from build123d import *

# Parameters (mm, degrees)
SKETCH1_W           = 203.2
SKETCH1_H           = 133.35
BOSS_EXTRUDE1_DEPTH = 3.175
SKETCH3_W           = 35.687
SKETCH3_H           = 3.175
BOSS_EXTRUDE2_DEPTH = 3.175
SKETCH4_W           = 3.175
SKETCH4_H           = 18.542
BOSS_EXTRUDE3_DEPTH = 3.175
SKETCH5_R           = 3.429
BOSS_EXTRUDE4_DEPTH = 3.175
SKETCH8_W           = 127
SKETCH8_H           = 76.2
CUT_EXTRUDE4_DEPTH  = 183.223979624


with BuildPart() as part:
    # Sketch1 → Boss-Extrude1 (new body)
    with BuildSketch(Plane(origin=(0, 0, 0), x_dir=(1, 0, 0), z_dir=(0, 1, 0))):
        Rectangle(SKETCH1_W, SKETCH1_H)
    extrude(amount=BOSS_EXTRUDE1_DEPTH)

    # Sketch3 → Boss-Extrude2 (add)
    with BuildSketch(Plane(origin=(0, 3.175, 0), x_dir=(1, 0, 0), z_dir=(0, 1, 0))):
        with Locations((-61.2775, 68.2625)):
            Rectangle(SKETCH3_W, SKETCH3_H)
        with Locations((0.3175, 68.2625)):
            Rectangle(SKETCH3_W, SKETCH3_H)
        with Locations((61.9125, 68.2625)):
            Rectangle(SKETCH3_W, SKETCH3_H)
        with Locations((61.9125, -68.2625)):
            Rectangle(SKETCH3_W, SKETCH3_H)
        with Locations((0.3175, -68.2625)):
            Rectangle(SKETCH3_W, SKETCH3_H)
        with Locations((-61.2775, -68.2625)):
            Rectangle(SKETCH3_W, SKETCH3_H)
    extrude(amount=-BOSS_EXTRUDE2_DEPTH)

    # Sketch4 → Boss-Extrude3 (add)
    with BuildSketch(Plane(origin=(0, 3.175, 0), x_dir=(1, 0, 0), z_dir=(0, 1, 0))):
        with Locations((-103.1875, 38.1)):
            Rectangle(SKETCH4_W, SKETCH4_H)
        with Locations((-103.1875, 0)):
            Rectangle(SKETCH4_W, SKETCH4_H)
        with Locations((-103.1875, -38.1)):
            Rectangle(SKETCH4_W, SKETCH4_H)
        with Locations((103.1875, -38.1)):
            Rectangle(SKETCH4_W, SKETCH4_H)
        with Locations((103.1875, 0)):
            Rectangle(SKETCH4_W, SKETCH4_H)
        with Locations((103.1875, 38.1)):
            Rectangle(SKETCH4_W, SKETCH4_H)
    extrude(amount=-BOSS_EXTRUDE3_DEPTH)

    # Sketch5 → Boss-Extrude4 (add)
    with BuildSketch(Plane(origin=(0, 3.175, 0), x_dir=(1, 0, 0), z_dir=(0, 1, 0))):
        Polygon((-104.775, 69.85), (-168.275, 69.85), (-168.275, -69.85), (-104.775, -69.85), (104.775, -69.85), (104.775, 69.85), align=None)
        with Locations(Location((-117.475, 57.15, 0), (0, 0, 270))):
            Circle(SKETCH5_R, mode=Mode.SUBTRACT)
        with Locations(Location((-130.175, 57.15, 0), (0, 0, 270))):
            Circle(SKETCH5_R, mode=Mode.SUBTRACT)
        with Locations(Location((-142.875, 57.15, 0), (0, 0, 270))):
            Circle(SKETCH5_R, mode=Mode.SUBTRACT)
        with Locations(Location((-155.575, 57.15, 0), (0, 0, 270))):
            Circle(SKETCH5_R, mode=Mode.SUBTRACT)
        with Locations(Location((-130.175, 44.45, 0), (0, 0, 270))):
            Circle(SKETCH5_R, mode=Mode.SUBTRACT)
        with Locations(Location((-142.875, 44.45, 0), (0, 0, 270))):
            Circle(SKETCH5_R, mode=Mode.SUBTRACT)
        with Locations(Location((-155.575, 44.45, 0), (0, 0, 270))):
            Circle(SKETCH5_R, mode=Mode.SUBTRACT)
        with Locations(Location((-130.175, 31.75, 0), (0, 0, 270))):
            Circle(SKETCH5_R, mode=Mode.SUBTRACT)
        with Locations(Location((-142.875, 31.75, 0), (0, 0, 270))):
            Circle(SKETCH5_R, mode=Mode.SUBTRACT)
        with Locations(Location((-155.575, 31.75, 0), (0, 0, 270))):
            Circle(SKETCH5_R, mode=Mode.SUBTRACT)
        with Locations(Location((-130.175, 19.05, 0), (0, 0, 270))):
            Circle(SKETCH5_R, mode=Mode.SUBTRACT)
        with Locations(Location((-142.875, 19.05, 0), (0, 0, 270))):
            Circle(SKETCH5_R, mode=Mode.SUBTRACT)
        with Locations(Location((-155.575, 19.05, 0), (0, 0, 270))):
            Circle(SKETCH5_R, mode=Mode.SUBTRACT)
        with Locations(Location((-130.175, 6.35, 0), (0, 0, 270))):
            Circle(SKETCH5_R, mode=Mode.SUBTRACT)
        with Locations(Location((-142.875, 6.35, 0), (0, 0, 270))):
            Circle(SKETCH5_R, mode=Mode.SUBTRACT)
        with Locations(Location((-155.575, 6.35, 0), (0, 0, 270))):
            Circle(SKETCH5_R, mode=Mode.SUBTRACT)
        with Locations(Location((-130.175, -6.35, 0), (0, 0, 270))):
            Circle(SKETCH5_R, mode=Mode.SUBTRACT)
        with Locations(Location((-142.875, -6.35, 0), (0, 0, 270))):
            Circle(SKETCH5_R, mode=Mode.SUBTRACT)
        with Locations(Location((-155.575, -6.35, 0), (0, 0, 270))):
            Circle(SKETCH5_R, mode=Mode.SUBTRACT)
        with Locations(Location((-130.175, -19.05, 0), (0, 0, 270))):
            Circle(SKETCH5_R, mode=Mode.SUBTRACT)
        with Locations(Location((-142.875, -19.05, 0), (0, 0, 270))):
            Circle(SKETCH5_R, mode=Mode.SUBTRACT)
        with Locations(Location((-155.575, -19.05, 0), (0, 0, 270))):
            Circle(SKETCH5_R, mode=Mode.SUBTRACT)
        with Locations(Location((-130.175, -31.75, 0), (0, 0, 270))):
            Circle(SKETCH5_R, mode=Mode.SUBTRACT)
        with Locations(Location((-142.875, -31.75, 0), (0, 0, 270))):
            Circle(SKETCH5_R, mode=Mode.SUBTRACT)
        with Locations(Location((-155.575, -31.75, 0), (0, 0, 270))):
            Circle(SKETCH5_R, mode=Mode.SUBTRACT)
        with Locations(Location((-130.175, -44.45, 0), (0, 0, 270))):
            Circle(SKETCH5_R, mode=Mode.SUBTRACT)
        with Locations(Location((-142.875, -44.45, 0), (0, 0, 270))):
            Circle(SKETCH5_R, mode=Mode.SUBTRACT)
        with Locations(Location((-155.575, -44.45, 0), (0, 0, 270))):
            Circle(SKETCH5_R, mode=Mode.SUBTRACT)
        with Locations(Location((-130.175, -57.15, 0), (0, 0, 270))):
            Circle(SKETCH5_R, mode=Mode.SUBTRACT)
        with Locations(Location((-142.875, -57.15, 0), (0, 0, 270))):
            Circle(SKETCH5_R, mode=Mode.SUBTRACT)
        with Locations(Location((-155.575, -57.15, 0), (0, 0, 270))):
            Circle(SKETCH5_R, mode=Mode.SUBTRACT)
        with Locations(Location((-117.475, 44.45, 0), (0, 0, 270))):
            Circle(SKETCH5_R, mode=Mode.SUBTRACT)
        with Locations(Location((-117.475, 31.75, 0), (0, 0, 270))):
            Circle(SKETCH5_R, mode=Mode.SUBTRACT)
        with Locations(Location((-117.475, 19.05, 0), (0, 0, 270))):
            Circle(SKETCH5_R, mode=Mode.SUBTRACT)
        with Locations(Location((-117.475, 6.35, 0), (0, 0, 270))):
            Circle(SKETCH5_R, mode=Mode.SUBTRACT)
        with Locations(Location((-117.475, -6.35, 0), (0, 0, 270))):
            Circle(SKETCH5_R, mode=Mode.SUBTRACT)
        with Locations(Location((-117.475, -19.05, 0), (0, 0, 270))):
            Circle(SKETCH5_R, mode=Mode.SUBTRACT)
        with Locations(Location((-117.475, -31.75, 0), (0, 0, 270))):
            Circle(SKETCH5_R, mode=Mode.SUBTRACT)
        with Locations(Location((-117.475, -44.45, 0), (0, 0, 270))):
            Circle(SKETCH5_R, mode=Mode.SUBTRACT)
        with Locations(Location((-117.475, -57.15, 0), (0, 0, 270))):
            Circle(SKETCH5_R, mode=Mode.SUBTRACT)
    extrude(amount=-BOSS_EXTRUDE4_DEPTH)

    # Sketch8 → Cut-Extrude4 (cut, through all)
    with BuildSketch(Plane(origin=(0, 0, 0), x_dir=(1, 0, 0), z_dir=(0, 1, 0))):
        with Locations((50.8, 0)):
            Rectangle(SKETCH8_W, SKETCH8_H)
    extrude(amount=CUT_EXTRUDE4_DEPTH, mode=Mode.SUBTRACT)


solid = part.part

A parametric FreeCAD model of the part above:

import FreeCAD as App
import Part
import Sketcher
Q = App.Units.Quantity

doc = App.newDocument("Part")
body = doc.addObject("PartDesign::Body", "Body")

# Sketch on XZ plane
sketch1 = body.newObject("Sketcher::SketchObject", "Sketch")
sketch1.AttachmentSupport = (doc.getObject("XZ_Plane"), [""])
sketch1.MapMode = "FlatFace"
sketch1.addGeometry(Part.LineSegment(App.Vector(-101.6, -66.675, 0), App.Vector(-101.6, 66.675, 0)), False)
sketch1.addGeometry(Part.LineSegment(App.Vector(-101.6, 66.675, 0), App.Vector(101.6, 66.675, 0)), False)
sketch1.addGeometry(Part.LineSegment(App.Vector(101.6, 66.675, 0), App.Vector(101.6, -66.675, 0)), False)
sketch1.addGeometry(Part.LineSegment(App.Vector(101.6, -66.675, 0), App.Vector(-101.6, -66.675, 0)), False)
sketch1.addConstraint(Sketcher.Constraint("Coincident", 0, 2, 1, 1))
sketch1.addConstraint(Sketcher.Constraint("Coincident", 1, 2, 2, 1))
sketch1.addConstraint(Sketcher.Constraint("Coincident", 2, 2, 3, 1))
sketch1.addConstraint(Sketcher.Constraint("Coincident", 3, 2, 0, 1))
sketch1.addConstraint(Sketcher.Constraint("Vertical", 0))
sketch1.addConstraint(Sketcher.Constraint("Horizontal", 1))
sketch1.addConstraint(Sketcher.Constraint("Vertical", 2))
sketch1.addConstraint(Sketcher.Constraint("Horizontal", 3))
sketch1.addConstraint(Sketcher.Constraint("Symmetric", 0, 2, 2, 2, -1, 1))
sketch1.addConstraint(Sketcher.Constraint("DistanceX", 1, 1, 1, 2, Q("8 in")))
sketch1.addConstraint(Sketcher.Constraint("DistanceY", 0, 1, 0, 2, Q("5.25 in")))
pad1 = body.newObject("PartDesign::Pad", "Pad")
pad1.Profile = sketch1
pad1.Length = Q("0.125 in")
pad1.Reversed = True

# Sketch on XZ plane
sketch2 = body.newObject("Sketcher::SketchObject", "Sketch001")
sketch2.AttachmentSupport = (doc.getObject("XZ_Plane"), [""])
sketch2.MapMode = "FlatFace"
sketch2.AttachmentOffset = App.Placement(App.Vector(0, 0, -0.125 * 25.4), App.Rotation())
sketch2.addGeometry(Part.LineSegment(App.Vector(-79.121, -69.85, 0), App.Vector(-79.121, -66.675, 0)), False)
sketch2.addGeometry(Part.LineSegment(App.Vector(-79.121, -66.675, 0), App.Vector(-43.434, -66.675, 0)), False)
sketch2.addGeometry(Part.LineSegment(App.Vector(-43.434, -66.675, 0), App.Vector(-43.434, -69.85, 0)), False)
sketch2.addGeometry(Part.LineSegment(App.Vector(-43.434, -69.85, 0), App.Vector(-79.121, -69.85, 0)), False)
sketch2.addGeometry(Part.LineSegment(App.Vector(-17.526, -69.85, 0), App.Vector(-17.526, -66.675, 0)), False)
sketch2.addGeometry(Part.LineSegment(App.Vector(-17.526, -66.675, 0), App.Vector(18.161, -66.675, 0)), False)
sketch2.addGeometry(Part.LineSegment(App.Vector(18.161, -66.675, 0), App.Vector(18.161, -69.85, 0)), False)
sketch2.addGeometry(Part.LineSegment(App.Vector(18.161, -69.85, 0), App.Vector(-17.526, -69.85, 0)), False)
sketch2.addGeometry(Part.LineSegment(App.Vector(44.069, -69.85, 0), App.Vector(44.069, -66.675, 0)), False)
sketch2.addGeometry(Part.LineSegment(App.Vector(44.069, -66.675, 0), App.Vector(79.756, -66.675, 0)), False)
sketch2.addGeometry(Part.LineSegment(App.Vector(79.756, -66.675, 0), App.Vector(79.756, -69.85, 0)), False)
sketch2.addGeometry(Part.LineSegment(App.Vector(79.756, -69.85, 0), App.Vector(44.069, -69.85, 0)), False)
sketch2.addGeometry(Part.LineSegment(App.Vector(44.069, 66.675, 0), App.Vector(44.069, 69.85, 0)), False)
sketch2.addGeometry(Part.LineSegment(App.Vector(44.069, 69.85, 0), App.Vector(79.756, 69.85, 0)), False)
sketch2.addGeometry(Part.LineSegment(App.Vector(79.756, 69.85, 0), App.Vector(79.756, 66.675, 0)), False)
sketch2.addGeometry(Part.LineSegment(App.Vector(79.756, 66.675, 0), App.Vector(44.069, 66.675, 0)), False)
sketch2.addGeometry(Part.LineSegment(App.Vector(-17.526, 66.675, 0), App.Vector(-17.526, 69.85, 0)), False)
sketch2.addGeometry(Part.LineSegment(App.Vector(-17.526, 69.85, 0), App.Vector(18.161, 69.85, 0)), False)
sketch2.addGeometry(Part.LineSegment(App.Vector(18.161, 69.85, 0), App.Vector(18.161, 66.675, 0)), False)
sketch2.addGeometry(Part.LineSegment(App.Vector(18.161, 66.675, 0), App.Vector(-17.526, 66.675, 0)), False)
sketch2.addGeometry(Part.LineSegment(App.Vector(-79.121, 66.675, 0), App.Vector(-79.121, 69.85, 0)), False)
sketch2.addGeometry(Part.LineSegment(App.Vector(-79.121, 69.85, 0), App.Vector(-43.434, 69.85, 0)), False)
sketch2.addGeometry(Part.LineSegment(App.Vector(-43.434, 69.85, 0), App.Vector(-43.434, 66.675, 0)), False)
sketch2.addGeometry(Part.LineSegment(App.Vector(-43.434, 66.675, 0), App.Vector(-79.121, 66.675, 0)), False)
sketch2.addConstraint(Sketcher.Constraint("Coincident", 0, 2, 1, 1))
sketch2.addConstraint(Sketcher.Constraint("Coincident", 1, 2, 2, 1))
sketch2.addConstraint(Sketcher.Constraint("Coincident", 2, 2, 3, 1))
sketch2.addConstraint(Sketcher.Constraint("Coincident", 3, 2, 0, 1))
sketch2.addConstraint(Sketcher.Constraint("Coincident", 4, 2, 5, 1))
sketch2.addConstraint(Sketcher.Constraint("Coincident", 5, 2, 6, 1))
sketch2.addConstraint(Sketcher.Constraint("Coincident", 6, 2, 7, 1))
sketch2.addConstraint(Sketcher.Constraint("Coincident", 7, 2, 4, 1))
sketch2.addConstraint(Sketcher.Constraint("Coincident", 8, 2, 9, 1))
sketch2.addConstraint(Sketcher.Constraint("Coincident", 9, 2, 10, 1))
sketch2.addConstraint(Sketcher.Constraint("Coincident", 10, 2, 11, 1))
sketch2.addConstraint(Sketcher.Constraint("Coincident", 11, 2, 8, 1))
sketch2.addConstraint(Sketcher.Constraint("Coincident", 12, 2, 13, 1))
sketch2.addConstraint(Sketcher.Constraint("Coincident", 13, 2, 14, 1))
sketch2.addConstraint(Sketcher.Constraint("Coincident", 14, 2, 15, 1))
sketch2.addConstraint(Sketcher.Constraint("Coincident", 15, 2, 12, 1))
sketch2.addConstraint(Sketcher.Constraint("Coincident", 16, 2, 17, 1))
sketch2.addConstraint(Sketcher.Constraint("Coincident", 17, 2, 18, 1))
sketch2.addConstraint(Sketcher.Constraint("Coincident", 18, 2, 19, 1))
sketch2.addConstraint(Sketcher.Constraint("Coincident", 19, 2, 16, 1))
sketch2.addConstraint(Sketcher.Constraint("Coincident", 20, 2, 21, 1))
sketch2.addConstraint(Sketcher.Constraint("Coincident", 21, 2, 22, 1))
sketch2.addConstraint(Sketcher.Constraint("Coincident", 22, 2, 23, 1))
sketch2.addConstraint(Sketcher.Constraint("Coincident", 23, 2, 20, 1))
sketch2.addConstraint(Sketcher.Constraint("Vertical", 0))
sketch2.addConstraint(Sketcher.Constraint("Horizontal", 1))
sketch2.addConstraint(Sketcher.Constraint("Vertical", 2))
sketch2.addConstraint(Sketcher.Constraint("Horizontal", 3))
sketch2.addConstraint(Sketcher.Constraint("Vertical", 4))
sketch2.addConstraint(Sketcher.Constraint("Horizontal", 5))
sketch2.addConstraint(Sketcher.Constraint("Vertical", 6))
sketch2.addConstraint(Sketcher.Constraint("Horizontal", 7))
sketch2.addConstraint(Sketcher.Constraint("Vertical", 8))
sketch2.addConstraint(Sketcher.Constraint("Horizontal", 9))
sketch2.addConstraint(Sketcher.Constraint("Vertical", 10))
sketch2.addConstraint(Sketcher.Constraint("Horizontal", 11))
sketch2.addConstraint(Sketcher.Constraint("Vertical", 12))
sketch2.addConstraint(Sketcher.Constraint("Horizontal", 13))
sketch2.addConstraint(Sketcher.Constraint("Vertical", 14))
sketch2.addConstraint(Sketcher.Constraint("Horizontal", 15))
sketch2.addConstraint(Sketcher.Constraint("Vertical", 16))
sketch2.addConstraint(Sketcher.Constraint("Horizontal", 17))
sketch2.addConstraint(Sketcher.Constraint("Vertical", 18))
sketch2.addConstraint(Sketcher.Constraint("Horizontal", 19))
sketch2.addConstraint(Sketcher.Constraint("Vertical", 20))
sketch2.addConstraint(Sketcher.Constraint("Horizontal", 21))
sketch2.addConstraint(Sketcher.Constraint("Vertical", 22))
sketch2.addConstraint(Sketcher.Constraint("Horizontal", 23))
sketch2.addConstraint(Sketcher.Constraint("Symmetric", 11, 2, 12, 2, -1))
sketch2.addConstraint(Sketcher.Constraint("Symmetric", 9, 2, 14, 2, -1))
sketch2.addConstraint(Sketcher.Constraint("Symmetric", 7, 2, 16, 2, -1))
sketch2.addConstraint(Sketcher.Constraint("Symmetric", 5, 2, 18, 2, -1))
sketch2.addConstraint(Sketcher.Constraint("Symmetric", 3, 2, 20, 2, -1))
sketch2.addConstraint(Sketcher.Constraint("Symmetric", 1, 2, 22, 2, -1))
sketch2.addConstraint(Sketcher.Constraint("Horizontal", 1, 2, 4, 2))
sketch2.addConstraint(Sketcher.Constraint("Horizontal", 3, 2, 6, 2))
sketch2.addConstraint(Sketcher.Constraint("Horizontal", 5, 2, 8, 2))
sketch2.addConstraint(Sketcher.Constraint("Horizontal", 7, 2, 10, 2))
sketch2.addConstraint(Sketcher.Constraint("Equal", 3, 5))
sketch2.addConstraint(Sketcher.Constraint("Equal", 7, 9))
sketch2.addConstraint(Sketcher.Constraint("DistanceY", 11, 2, 12, 2, Q("5.5 in")))
sketch2.addConstraint(Sketcher.Constraint("DistanceX", 1, 1, 1, 2, Q("1.405 in")))
sketch2.addConstraint(Sketcher.Constraint("DistanceY", 0, 1, 0, 2, Q("0.125 in")))
sketch2.addConstraint(Sketcher.Constraint("DistanceX", 1, 2, -1, 1, Q("1.71 in")))
sketch2.addConstraint(Sketcher.Constraint("DistanceX", 4, 2, -1, 1, Q("0.69 in")))
sketch2.addConstraint(Sketcher.Constraint("DistanceX", -1, 1, 9, 2, Q("3.14 in")))
pad2 = body.newObject("PartDesign::Pad", "Pad001")
pad2.Profile = sketch2
pad2.Length = Q("0.125 in")

# Sketch on XZ plane
sketch3 = body.newObject("Sketcher::SketchObject", "Sketch002")
sketch3.AttachmentSupport = (doc.getObject("XZ_Plane"), [""])
sketch3.MapMode = "FlatFace"
sketch3.AttachmentOffset = App.Placement(App.Vector(0, 0, -0.125 * 25.4), App.Rotation())
sketch3.addGeometry(Part.LineSegment(App.Vector(-104.775, -47.371, 0), App.Vector(-104.775, -28.829, 0)), False)
sketch3.addGeometry(Part.LineSegment(App.Vector(-104.775, -28.829, 0), App.Vector(-101.6, -28.829, 0)), False)
sketch3.addGeometry(Part.LineSegment(App.Vector(-101.6, -28.829, 0), App.Vector(-101.6, -47.371, 0)), False)
sketch3.addGeometry(Part.LineSegment(App.Vector(-101.6, -47.371, 0), App.Vector(-104.775, -47.371, 0)), False)
sketch3.addGeometry(Part.LineSegment(App.Vector(-104.775, -9.271, 0), App.Vector(-104.775, 9.271, 0)), False)
sketch3.addGeometry(Part.LineSegment(App.Vector(-104.775, 9.271, 0), App.Vector(-101.6, 9.271, 0)), False)
sketch3.addGeometry(Part.LineSegment(App.Vector(-101.6, 9.271, 0), App.Vector(-101.6, -9.271, 0)), False)
sketch3.addGeometry(Part.LineSegment(App.Vector(-101.6, -9.271, 0), App.Vector(-104.775, -9.271, 0)), False)
sketch3.addGeometry(Part.LineSegment(App.Vector(-104.775, 28.829, 0), App.Vector(-104.775, 47.371, 0)), False)
sketch3.addGeometry(Part.LineSegment(App.Vector(-104.775, 47.371, 0), App.Vector(-101.6, 47.371, 0)), False)
sketch3.addGeometry(Part.LineSegment(App.Vector(-101.6, 47.371, 0), App.Vector(-101.6, 28.829, 0)), False)
sketch3.addGeometry(Part.LineSegment(App.Vector(-101.6, 28.829, 0), App.Vector(-104.775, 28.829, 0)), False)
sketch3.addGeometry(Part.LineSegment(App.Vector(101.6, 28.829, 0), App.Vector(101.6, 47.371, 0)), False)
sketch3.addGeometry(Part.LineSegment(App.Vector(101.6, 47.371, 0), App.Vector(104.775, 47.371, 0)), False)
sketch3.addGeometry(Part.LineSegment(App.Vector(104.775, 47.371, 0), App.Vector(104.775, 28.829, 0)), False)
sketch3.addGeometry(Part.LineSegment(App.Vector(104.775, 28.829, 0), App.Vector(101.6, 28.829, 0)), False)
sketch3.addGeometry(Part.LineSegment(App.Vector(101.6, -9.271, 0), App.Vector(101.6, 9.271, 0)), False)
sketch3.addGeometry(Part.LineSegment(App.Vector(101.6, 9.271, 0), App.Vector(104.775, 9.271, 0)), False)
sketch3.addGeometry(Part.LineSegment(App.Vector(104.775, 9.271, 0), App.Vector(104.775, -9.271, 0)), False)
sketch3.addGeometry(Part.LineSegment(App.Vector(104.775, -9.271, 0), App.Vector(101.6, -9.271, 0)), False)
sketch3.addGeometry(Part.LineSegment(App.Vector(101.6, -47.371, 0), App.Vector(101.6, -28.829, 0)), False)
sketch3.addGeometry(Part.LineSegment(App.Vector(101.6, -28.829, 0), App.Vector(104.775, -28.829, 0)), False)
sketch3.addGeometry(Part.LineSegment(App.Vector(104.775, -28.829, 0), App.Vector(104.775, -47.371, 0)), False)
sketch3.addGeometry(Part.LineSegment(App.Vector(104.775, -47.371, 0), App.Vector(101.6, -47.371, 0)), False)
sketch3.addConstraint(Sketcher.Constraint("Coincident", 0, 2, 1, 1))
sketch3.addConstraint(Sketcher.Constraint("Coincident", 1, 2, 2, 1))
sketch3.addConstraint(Sketcher.Constraint("Coincident", 2, 2, 3, 1))
sketch3.addConstraint(Sketcher.Constraint("Coincident", 3, 2, 0, 1))
sketch3.addConstraint(Sketcher.Constraint("Coincident", 4, 2, 5, 1))
sketch3.addConstraint(Sketcher.Constraint("Coincident", 5, 2, 6, 1))
sketch3.addConstraint(Sketcher.Constraint("Coincident", 6, 2, 7, 1))
sketch3.addConstraint(Sketcher.Constraint("Coincident", 7, 2, 4, 1))
sketch3.addConstraint(Sketcher.Constraint("Coincident", 8, 2, 9, 1))
sketch3.addConstraint(Sketcher.Constraint("Coincident", 9, 2, 10, 1))
sketch3.addConstraint(Sketcher.Constraint("Coincident", 10, 2, 11, 1))
sketch3.addConstraint(Sketcher.Constraint("Coincident", 11, 2, 8, 1))
sketch3.addConstraint(Sketcher.Constraint("Coincident", 12, 2, 13, 1))
sketch3.addConstraint(Sketcher.Constraint("Coincident", 13, 2, 14, 1))
sketch3.addConstraint(Sketcher.Constraint("Coincident", 14, 2, 15, 1))
sketch3.addConstraint(Sketcher.Constraint("Coincident", 15, 2, 12, 1))
sketch3.addConstraint(Sketcher.Constraint("Coincident", 16, 2, 17, 1))
sketch3.addConstraint(Sketcher.Constraint("Coincident", 17, 2, 18, 1))
sketch3.addConstraint(Sketcher.Constraint("Coincident", 18, 2, 19, 1))
sketch3.addConstraint(Sketcher.Constraint("Coincident", 19, 2, 16, 1))
sketch3.addConstraint(Sketcher.Constraint("Coincident", 20, 2, 21, 1))
sketch3.addConstraint(Sketcher.Constraint("Coincident", 21, 2, 22, 1))
sketch3.addConstraint(Sketcher.Constraint("Coincident", 22, 2, 23, 1))
sketch3.addConstraint(Sketcher.Constraint("Coincident", 23, 2, 20, 1))
sketch3.addConstraint(Sketcher.Constraint("Vertical", 0))
sketch3.addConstraint(Sketcher.Constraint("Horizontal", 1))
sketch3.addConstraint(Sketcher.Constraint("Vertical", 2))
sketch3.addConstraint(Sketcher.Constraint("Horizontal", 3))
sketch3.addConstraint(Sketcher.Constraint("Vertical", 4))
sketch3.addConstraint(Sketcher.Constraint("Horizontal", 5))
sketch3.addConstraint(Sketcher.Constraint("Vertical", 6))
sketch3.addConstraint(Sketcher.Constraint("Horizontal", 7))
sketch3.addConstraint(Sketcher.Constraint("Vertical", 8))
sketch3.addConstraint(Sketcher.Constraint("Horizontal", 9))
sketch3.addConstraint(Sketcher.Constraint("Vertical", 10))
sketch3.addConstraint(Sketcher.Constraint("Horizontal", 11))
sketch3.addConstraint(Sketcher.Constraint("Vertical", 12))
sketch3.addConstraint(Sketcher.Constraint("Horizontal", 13))
sketch3.addConstraint(Sketcher.Constraint("Vertical", 14))
sketch3.addConstraint(Sketcher.Constraint("Horizontal", 15))
sketch3.addConstraint(Sketcher.Constraint("Vertical", 16))
sketch3.addConstraint(Sketcher.Constraint("Horizontal", 17))
sketch3.addConstraint(Sketcher.Constraint("Vertical", 18))
sketch3.addConstraint(Sketcher.Constraint("Horizontal", 19))
sketch3.addConstraint(Sketcher.Constraint("Vertical", 20))
sketch3.addConstraint(Sketcher.Constraint("Horizontal", 21))
sketch3.addConstraint(Sketcher.Constraint("Vertical", 22))
sketch3.addConstraint(Sketcher.Constraint("Horizontal", 23))
sketch3.addConstraint(Sketcher.Constraint("Symmetric", 2, 2, 12, 2, -1, 1))
sketch3.addConstraint(Sketcher.Constraint("Symmetric", 0, 2, 14, 2, -1, 1))
sketch3.addConstraint(Sketcher.Constraint("Symmetric", 6, 2, 16, 2, -1, 1))
sketch3.addConstraint(Sketcher.Constraint("Symmetric", 4, 2, 18, 2, -1, 1))
sketch3.addConstraint(Sketcher.Constraint("Symmetric", 10, 2, 20, 2, -1, 1))
sketch3.addConstraint(Sketcher.Constraint("Symmetric", 8, 2, 22, 2, -1, 1))
sketch3.addConstraint(Sketcher.Constraint("Symmetric", 9, 2, 12, 2, -2))
sketch3.addConstraint(Sketcher.Constraint("Symmetric", 11, 2, 14, 2, -2))
sketch3.addConstraint(Sketcher.Constraint("Horizontal", 5, 2, 16, 2))
sketch3.addConstraint(Sketcher.Constraint("Vertical", 3, 2, 4, 2))
sketch3.addConstraint(Sketcher.Constraint("Vertical", 2, 2, 5, 2))
sketch3.addConstraint(Sketcher.Constraint("Equal", 2, 4))
sketch3.addConstraint(Sketcher.Constraint("DistanceX", 1, 2, -1, 1, Q("4 in")))
sketch3.addConstraint(Sketcher.Constraint("DistanceY", 0, 2, 8, 2, Q("3 in")))
sketch3.addConstraint(Sketcher.Constraint("DistanceY", 0, 1, 0, 2, Q("0.73 in")))
sketch3.addConstraint(Sketcher.Constraint("DistanceX", 1, 1, 1, 2, Q("0.125 in")))
pad3 = body.newObject("PartDesign::Pad", "Pad002")
pad3.Profile = sketch3
pad3.Length = Q("0.125 in")

# Sketch on XZ plane
sketch4 = body.newObject("Sketcher::SketchObject", "Sketch003")
sketch4.AttachmentSupport = (doc.getObject("XZ_Plane"), [""])
sketch4.MapMode = "FlatFace"
sketch4.AttachmentOffset = App.Placement(App.Vector(0, 0, -0.125 * 25.4), App.Rotation())
sketch4.addGeometry(Part.LineSegment(App.Vector(-168.275, -69.85, 0), App.Vector(-168.275, 69.85, 0)), False)
sketch4.addGeometry(Part.LineSegment(App.Vector(-168.275, 69.85, 0), App.Vector(104.775, 69.85, 0)), False)
sketch4.addGeometry(Part.LineSegment(App.Vector(104.775, 69.85, 0), App.Vector(104.775, -69.85, 0)), False)
sketch4.addGeometry(Part.LineSegment(App.Vector(104.775, -69.85, 0), App.Vector(-168.275, -69.85, 0)), False)
sketch4.addGeometry(Part.Circle(App.Vector(-155.575, 57.15, 0), App.Vector(0, 0, 1), 3.429), False)
sketch4.addGeometry(Part.Circle(App.Vector(-155.575, 44.45, 0), App.Vector(0, 0, 1), 3.429), False)
sketch4.addGeometry(Part.Circle(App.Vector(-155.575, 31.75, 0), App.Vector(0, 0, 1), 3.429), False)
sketch4.addGeometry(Part.Circle(App.Vector(-142.875, 57.15, 0), App.Vector(0, 0, 1), 3.429), False)
sketch4.addGeometry(Part.Circle(App.Vector(-142.875, 44.45, 0), App.Vector(0, 0, 1), 3.429), False)
sketch4.addGeometry(Part.Circle(App.Vector(-142.875, 31.75, 0), App.Vector(0, 0, 1), 3.429), False)
sketch4.addGeometry(Part.Circle(App.Vector(-155.575, 19.05, 0), App.Vector(0, 0, 1), 3.429), False)
sketch4.addGeometry(Part.Circle(App.Vector(-155.575, 6.35, 0), App.Vector(0, 0, 1), 3.429), False)
sketch4.addGeometry(Part.Circle(App.Vector(-142.875, 19.05, 0), App.Vector(0, 0, 1), 3.429), False)
sketch4.addGeometry(Part.Circle(App.Vector(-142.875, 6.35, 0), App.Vector(0, 0, 1), 3.429), False)
sketch4.addGeometry(Part.Circle(App.Vector(-130.175, 57.15, 0), App.Vector(0, 0, 1), 3.429), False)
sketch4.addGeometry(Part.Circle(App.Vector(-130.175, 44.45, 0), App.Vector(0, 0, 1), 3.429), False)
sketch4.addGeometry(Part.Circle(App.Vector(-130.175, 31.75, 0), App.Vector(0, 0, 1), 3.429), False)
sketch4.addGeometry(Part.Circle(App.Vector(-117.475, 57.15, 0), App.Vector(0, 0, 1), 3.429), False)
sketch4.addGeometry(Part.Circle(App.Vector(-117.475, 44.45, 0), App.Vector(0, 0, 1), 3.429), False)
sketch4.addGeometry(Part.Circle(App.Vector(-117.475, 31.75, 0), App.Vector(0, 0, 1), 3.429), False)
sketch4.addGeometry(Part.Circle(App.Vector(-130.175, 19.05, 0), App.Vector(0, 0, 1), 3.429), False)
sketch4.addGeometry(Part.Circle(App.Vector(-130.175, 6.35, 0), App.Vector(0, 0, 1), 3.429), False)
sketch4.addGeometry(Part.Circle(App.Vector(-117.475, 19.05, 0), App.Vector(0, 0, 1), 3.429), False)
sketch4.addGeometry(Part.Circle(App.Vector(-117.475, 6.35, 0), App.Vector(0, 0, 1), 3.429), False)
sketch4.addGeometry(Part.Circle(App.Vector(-155.575, -6.35, 0), App.Vector(0, 0, 1), 3.429), False)
sketch4.addGeometry(Part.Circle(App.Vector(-155.575, -19.05, 0), App.Vector(0, 0, 1), 3.429), False)
sketch4.addGeometry(Part.Circle(App.Vector(-142.875, -6.35, 0), App.Vector(0, 0, 1), 3.429), False)
sketch4.addGeometry(Part.Circle(App.Vector(-142.875, -19.05, 0), App.Vector(0, 0, 1), 3.429), False)
sketch4.addGeometry(Part.Circle(App.Vector(-155.575, -31.75, 0), App.Vector(0, 0, 1), 3.429), False)
sketch4.addGeometry(Part.Circle(App.Vector(-155.575, -44.45, 0), App.Vector(0, 0, 1), 3.429), False)
sketch4.addGeometry(Part.Circle(App.Vector(-155.575, -57.15, 0), App.Vector(0, 0, 1), 3.429), False)
sketch4.addGeometry(Part.Circle(App.Vector(-142.875, -31.75, 0), App.Vector(0, 0, 1), 3.429), False)
sketch4.addGeometry(Part.Circle(App.Vector(-142.875, -44.45, 0), App.Vector(0, 0, 1), 3.429), False)
sketch4.addGeometry(Part.Circle(App.Vector(-142.875, -57.15, 0), App.Vector(0, 0, 1), 3.429), False)
sketch4.addGeometry(Part.Circle(App.Vector(-130.175, -6.35, 0), App.Vector(0, 0, 1), 3.429), False)
sketch4.addGeometry(Part.Circle(App.Vector(-130.175, -19.05, 0), App.Vector(0, 0, 1), 3.429), False)
sketch4.addGeometry(Part.Circle(App.Vector(-117.475, -6.35, 0), App.Vector(0, 0, 1), 3.429), False)
sketch4.addGeometry(Part.Circle(App.Vector(-117.475, -19.05, 0), App.Vector(0, 0, 1), 3.429), False)
sketch4.addGeometry(Part.Circle(App.Vector(-130.175, -31.75, 0), App.Vector(0, 0, 1), 3.429), False)
sketch4.addGeometry(Part.Circle(App.Vector(-130.175, -44.45, 0), App.Vector(0, 0, 1), 3.429), False)
sketch4.addGeometry(Part.Circle(App.Vector(-130.175, -57.15, 0), App.Vector(0, 0, 1), 3.429), False)
sketch4.addGeometry(Part.Circle(App.Vector(-117.475, -31.75, 0), App.Vector(0, 0, 1), 3.429), False)
sketch4.addGeometry(Part.Circle(App.Vector(-117.475, -44.45, 0), App.Vector(0, 0, 1), 3.429), False)
sketch4.addGeometry(Part.Circle(App.Vector(-117.475, -57.15, 0), App.Vector(0, 0, 1), 3.429), False)
sketch4.addConstraint(Sketcher.Constraint("Coincident", 0, 2, 1, 1))
sketch4.addConstraint(Sketcher.Constraint("Coincident", 1, 2, 2, 1))
sketch4.addConstraint(Sketcher.Constraint("Coincident", 2, 2, 3, 1))
sketch4.addConstraint(Sketcher.Constraint("Coincident", 3, 2, 0, 1))
sketch4.addConstraint(Sketcher.Constraint("Vertical", 0))
sketch4.addConstraint(Sketcher.Constraint("Horizontal", 1))
sketch4.addConstraint(Sketcher.Constraint("Vertical", 2))
sketch4.addConstraint(Sketcher.Constraint("Horizontal", 3))
sketch4.addConstraint(Sketcher.Constraint("Equal", 4, 5))
sketch4.addConstraint(Sketcher.Constraint("Equal", 5, 6))
sketch4.addConstraint(Sketcher.Constraint("Equal", 6, 7))
sketch4.addConstraint(Sketcher.Constraint("Equal", 7, 8))
sketch4.addConstraint(Sketcher.Constraint("Equal", 8, 9))
sketch4.addConstraint(Sketcher.Constraint("Equal", 9, 10))
sketch4.addConstraint(Sketcher.Constraint("Equal", 10, 11))
sketch4.addConstraint(Sketcher.Constraint("Equal", 11, 12))
sketch4.addConstraint(Sketcher.Constraint("Equal", 12, 13))
sketch4.addConstraint(Sketcher.Constraint("Equal", 13, 14))
sketch4.addConstraint(Sketcher.Constraint("Equal", 14, 15))
sketch4.addConstraint(Sketcher.Constraint("Equal", 15, 16))
sketch4.addConstraint(Sketcher.Constraint("Equal", 16, 17))
sketch4.addConstraint(Sketcher.Constraint("Equal", 17, 18))
sketch4.addConstraint(Sketcher.Constraint("Equal", 18, 19))
sketch4.addConstraint(Sketcher.Constraint("Equal", 19, 20))
sketch4.addConstraint(Sketcher.Constraint("Equal", 20, 21))
sketch4.addConstraint(Sketcher.Constraint("Equal", 21, 22))
sketch4.addConstraint(Sketcher.Constraint("Equal", 22, 23))
sketch4.addConstraint(Sketcher.Constraint("Equal", 23, 24))
sketch4.addConstraint(Sketcher.Constraint("Equal", 24, 25))
sketch4.addConstraint(Sketcher.Constraint("Equal", 25, 26))
sketch4.addConstraint(Sketcher.Constraint("Equal", 26, 27))
sketch4.addConstraint(Sketcher.Constraint("Equal", 27, 28))
sketch4.addConstraint(Sketcher.Constraint("Equal", 28, 29))
sketch4.addConstraint(Sketcher.Constraint("Equal", 29, 30))
sketch4.addConstraint(Sketcher.Constraint("Equal", 30, 31))
sketch4.addConstraint(Sketcher.Constraint("Equal", 31, 32))
sketch4.addConstraint(Sketcher.Constraint("Equal", 32, 33))
sketch4.addConstraint(Sketcher.Constraint("Equal", 33, 34))
sketch4.addConstraint(Sketcher.Constraint("Equal", 34, 35))
sketch4.addConstraint(Sketcher.Constraint("Equal", 35, 36))
sketch4.addConstraint(Sketcher.Constraint("Equal", 36, 37))
sketch4.addConstraint(Sketcher.Constraint("Equal", 37, 38))
sketch4.addConstraint(Sketcher.Constraint("Equal", 38, 39))
sketch4.addConstraint(Sketcher.Constraint("Equal", 39, 40))
sketch4.addConstraint(Sketcher.Constraint("Equal", 40, 41))
sketch4.addConstraint(Sketcher.Constraint("Equal", 41, 42))
sketch4.addConstraint(Sketcher.Constraint("Equal", 42, 43))
sketch4.addConstraint(Sketcher.Constraint("Symmetric", 11, 3, 24, 3, -1))
sketch4.addConstraint(Sketcher.Constraint("Symmetric", 10, 3, 25, 3, -1))
sketch4.addConstraint(Sketcher.Constraint("Symmetric", 13, 3, 26, 3, -1))
sketch4.addConstraint(Sketcher.Constraint("Symmetric", 12, 3, 27, 3, -1))
sketch4.addConstraint(Sketcher.Constraint("Symmetric", 6, 3, 28, 3, -1))
sketch4.addConstraint(Sketcher.Constraint("Symmetric", 5, 3, 29, 3, -1))
sketch4.addConstraint(Sketcher.Constraint("Symmetric", 4, 3, 30, 3, -1))
sketch4.addConstraint(Sketcher.Constraint("Symmetric", 9, 3, 31, 3, -1))
sketch4.addConstraint(Sketcher.Constraint("Symmetric", 8, 3, 32, 3, -1))
sketch4.addConstraint(Sketcher.Constraint("Symmetric", 7, 3, 33, 3, -1))
sketch4.addConstraint(Sketcher.Constraint("Symmetric", 21, 3, 34, 3, -1))
sketch4.addConstraint(Sketcher.Constraint("Symmetric", 20, 3, 35, 3, -1))
sketch4.addConstraint(Sketcher.Constraint("Symmetric", 23, 3, 36, 3, -1))
sketch4.addConstraint(Sketcher.Constraint("Symmetric", 22, 3, 37, 3, -1))
sketch4.addConstraint(Sketcher.Constraint("Symmetric", 16, 3, 38, 3, -1))
sketch4.addConstraint(Sketcher.Constraint("Symmetric", 15, 3, 39, 3, -1))
sketch4.addConstraint(Sketcher.Constraint("Symmetric", 14, 3, 40, 3, -1))
sketch4.addConstraint(Sketcher.Constraint("Symmetric", 19, 3, 41, 3, -1))
sketch4.addConstraint(Sketcher.Constraint("Symmetric", 18, 3, 42, 3, -1))
sketch4.addConstraint(Sketcher.Constraint("Symmetric", 17, 3, 43, 3, -1))
sketch4.addConstraint(Sketcher.Constraint("Horizontal", 4, 3, 7, 3))
sketch4.addConstraint(Sketcher.Constraint("Horizontal", 5, 3, 8, 3))
sketch4.addConstraint(Sketcher.Constraint("Horizontal", 6, 3, 9, 3))
sketch4.addConstraint(Sketcher.Constraint("Horizontal", 10, 3, 12, 3))
sketch4.addConstraint(Sketcher.Constraint("Horizontal", 11, 3, 13, 3))
sketch4.addConstraint(Sketcher.Constraint("Horizontal", 7, 3, 14, 3))
sketch4.addConstraint(Sketcher.Constraint("Horizontal", 8, 3, 15, 3))
sketch4.addConstraint(Sketcher.Constraint("Horizontal", 9, 3, 16, 3))
sketch4.addConstraint(Sketcher.Constraint("Horizontal", 14, 3, 17, 3))
sketch4.addConstraint(Sketcher.Constraint("Horizontal", 15, 3, 18, 3))
sketch4.addConstraint(Sketcher.Constraint("Horizontal", 16, 3, 19, 3))
sketch4.addConstraint(Sketcher.Constraint("Horizontal", 12, 3, 20, 3))
sketch4.addConstraint(Sketcher.Constraint("Horizontal", 13, 3, 21, 3))
sketch4.addConstraint(Sketcher.Constraint("Horizontal", 20, 3, 22, 3))
sketch4.addConstraint(Sketcher.Constraint("Horizontal", 21, 3, 23, 3))
sketch4.addConstraint(Sketcher.Constraint("Vertical", 4, 3, 5, 3))
sketch4.addConstraint(Sketcher.Constraint("Vertical", 5, 3, 6, 3))
sketch4.addConstraint(Sketcher.Constraint("Vertical", 7, 3, 8, 3))
sketch4.addConstraint(Sketcher.Constraint("Vertical", 8, 3, 9, 3))
sketch4.addConstraint(Sketcher.Constraint("Vertical", 6, 3, 10, 3))
sketch4.addConstraint(Sketcher.Constraint("Vertical", 10, 3, 11, 3))
sketch4.addConstraint(Sketcher.Constraint("Vertical", 9, 3, 12, 3))
sketch4.addConstraint(Sketcher.Constraint("Vertical", 12, 3, 13, 3))
sketch4.addConstraint(Sketcher.Constraint("Vertical", 14, 3, 15, 3))
sketch4.addConstraint(Sketcher.Constraint("Vertical", 15, 3, 16, 3))
sketch4.addConstraint(Sketcher.Constraint("Vertical", 17, 3, 18, 3))
sketch4.addConstraint(Sketcher.Constraint("Vertical", 18, 3, 19, 3))
sketch4.addConstraint(Sketcher.Constraint("Vertical", 16, 3, 20, 3))
sketch4.addConstraint(Sketcher.Constraint("Vertical", 20, 3, 21, 3))
sketch4.addConstraint(Sketcher.Constraint("Vertical", 19, 3, 22, 3))
sketch4.addConstraint(Sketcher.Constraint("Vertical", 22, 3, 23, 3))
sketch4.addConstraint(Sketcher.Constraint("Diameter", 4, Q("0.27 in")))
sketch4.addConstraint(Sketcher.Constraint("DistanceY", 0, 1, 0, 2, Q("5.5 in")))
sketch4.addConstraint(Sketcher.Constraint("DistanceY", 6, 3, 4, 3, Q("1 in")))
sketch4.addConstraint(Sketcher.Constraint("DistanceY", 10, 3, 5, 3, Q("1 in")))
sketch4.addConstraint(Sketcher.Constraint("DistanceY", 11, 3, 6, 3, Q("1 in")))
sketch4.addConstraint(Sketcher.Constraint("DistanceX", 4, 3, 14, 3, Q("1 in")))
sketch4.addConstraint(Sketcher.Constraint("DistanceX", 7, 3, 17, 3, Q("1 in")))
sketch4.addConstraint(Sketcher.Constraint("DistanceY", 24, 3, 10, 3, Q("1 in")))
sketch4.addConstraint(Sketcher.Constraint("DistanceY", 5, 3, 0, 2, Q("1 in")))
sketch4.addConstraint(Sketcher.Constraint("DistanceX", 0, 2, 7, 3, Q("1 in")))
sketch4.addConstraint(Sketcher.Constraint("DistanceY", 2, 2, 42, 3, Q("1 in")))
sketch4.addConstraint(Sketcher.Constraint("DistanceX", 1, 1, 1, 2, Q("10.75 in")))
sketch4.addConstraint(Sketcher.Constraint("DistanceX", 4, 3, 7, 3, Q("0.5 in")))
sketch4.addConstraint(Sketcher.Constraint("DistanceX", 4, 3, -1, 1, Q("6.125 in")))
pad4 = body.newObject("PartDesign::Pad", "Pad003")
pad4.Profile = sketch4
pad4.Length = Q("0.125 in")

# Sketch on XZ plane
sketch5 = body.newObject("Sketcher::SketchObject", "Sketch004")
sketch5.AttachmentSupport = (doc.getObject("XZ_Plane"), [""])
sketch5.MapMode = "FlatFace"
sketch5.addGeometry(Part.LineSegment(App.Vector(-12.7, -38.1, 0), App.Vector(-12.7, 38.1, 0)), False)
sketch5.addGeometry(Part.LineSegment(App.Vector(-12.7, 38.1, 0), App.Vector(114.3, 38.1, 0)), False)
sketch5.addGeometry(Part.LineSegment(App.Vector(114.3, 38.1, 0), App.Vector(114.3, -38.1, 0)), False)
sketch5.addGeometry(Part.LineSegment(App.Vector(114.3, -38.1, 0), App.Vector(-12.7, -38.1, 0)), False)
sketch5.addConstraint(Sketcher.Constraint("Coincident", 0, 2, 1, 1))
sketch5.addConstraint(Sketcher.Constraint("Coincident", 1, 2, 2, 1))
sketch5.addConstraint(Sketcher.Constraint("Coincident", 2, 2, 3, 1))
sketch5.addConstraint(Sketcher.Constraint("Coincident", 3, 2, 0, 1))
sketch5.addConstraint(Sketcher.Constraint("Vertical", 0))
sketch5.addConstraint(Sketcher.Constraint("Horizontal", 1))
sketch5.addConstraint(Sketcher.Constraint("Vertical", 2))
sketch5.addConstraint(Sketcher.Constraint("Horizontal", 3))
sketch5.addConstraint(Sketcher.Constraint("DistanceX", 1, 1, 1, 2, Q("5 in")))
sketch5.addConstraint(Sketcher.Constraint("DistanceY", 0, 1, 0, 2, Q("3 in")))
sketch5.addConstraint(Sketcher.Constraint("DistanceX", 0, 2, -1, 1, Q("0.5 in")))
sketch5.addConstraint(Sketcher.Constraint("DistanceY", -1, 1, 0, 2, Q("1.5 in")))
pocket1 = body.newObject("PartDesign::Pocket", "Pocket")
pocket1.Profile = sketch5
pocket1.Type = "ThroughAll"

doc.recompute()
